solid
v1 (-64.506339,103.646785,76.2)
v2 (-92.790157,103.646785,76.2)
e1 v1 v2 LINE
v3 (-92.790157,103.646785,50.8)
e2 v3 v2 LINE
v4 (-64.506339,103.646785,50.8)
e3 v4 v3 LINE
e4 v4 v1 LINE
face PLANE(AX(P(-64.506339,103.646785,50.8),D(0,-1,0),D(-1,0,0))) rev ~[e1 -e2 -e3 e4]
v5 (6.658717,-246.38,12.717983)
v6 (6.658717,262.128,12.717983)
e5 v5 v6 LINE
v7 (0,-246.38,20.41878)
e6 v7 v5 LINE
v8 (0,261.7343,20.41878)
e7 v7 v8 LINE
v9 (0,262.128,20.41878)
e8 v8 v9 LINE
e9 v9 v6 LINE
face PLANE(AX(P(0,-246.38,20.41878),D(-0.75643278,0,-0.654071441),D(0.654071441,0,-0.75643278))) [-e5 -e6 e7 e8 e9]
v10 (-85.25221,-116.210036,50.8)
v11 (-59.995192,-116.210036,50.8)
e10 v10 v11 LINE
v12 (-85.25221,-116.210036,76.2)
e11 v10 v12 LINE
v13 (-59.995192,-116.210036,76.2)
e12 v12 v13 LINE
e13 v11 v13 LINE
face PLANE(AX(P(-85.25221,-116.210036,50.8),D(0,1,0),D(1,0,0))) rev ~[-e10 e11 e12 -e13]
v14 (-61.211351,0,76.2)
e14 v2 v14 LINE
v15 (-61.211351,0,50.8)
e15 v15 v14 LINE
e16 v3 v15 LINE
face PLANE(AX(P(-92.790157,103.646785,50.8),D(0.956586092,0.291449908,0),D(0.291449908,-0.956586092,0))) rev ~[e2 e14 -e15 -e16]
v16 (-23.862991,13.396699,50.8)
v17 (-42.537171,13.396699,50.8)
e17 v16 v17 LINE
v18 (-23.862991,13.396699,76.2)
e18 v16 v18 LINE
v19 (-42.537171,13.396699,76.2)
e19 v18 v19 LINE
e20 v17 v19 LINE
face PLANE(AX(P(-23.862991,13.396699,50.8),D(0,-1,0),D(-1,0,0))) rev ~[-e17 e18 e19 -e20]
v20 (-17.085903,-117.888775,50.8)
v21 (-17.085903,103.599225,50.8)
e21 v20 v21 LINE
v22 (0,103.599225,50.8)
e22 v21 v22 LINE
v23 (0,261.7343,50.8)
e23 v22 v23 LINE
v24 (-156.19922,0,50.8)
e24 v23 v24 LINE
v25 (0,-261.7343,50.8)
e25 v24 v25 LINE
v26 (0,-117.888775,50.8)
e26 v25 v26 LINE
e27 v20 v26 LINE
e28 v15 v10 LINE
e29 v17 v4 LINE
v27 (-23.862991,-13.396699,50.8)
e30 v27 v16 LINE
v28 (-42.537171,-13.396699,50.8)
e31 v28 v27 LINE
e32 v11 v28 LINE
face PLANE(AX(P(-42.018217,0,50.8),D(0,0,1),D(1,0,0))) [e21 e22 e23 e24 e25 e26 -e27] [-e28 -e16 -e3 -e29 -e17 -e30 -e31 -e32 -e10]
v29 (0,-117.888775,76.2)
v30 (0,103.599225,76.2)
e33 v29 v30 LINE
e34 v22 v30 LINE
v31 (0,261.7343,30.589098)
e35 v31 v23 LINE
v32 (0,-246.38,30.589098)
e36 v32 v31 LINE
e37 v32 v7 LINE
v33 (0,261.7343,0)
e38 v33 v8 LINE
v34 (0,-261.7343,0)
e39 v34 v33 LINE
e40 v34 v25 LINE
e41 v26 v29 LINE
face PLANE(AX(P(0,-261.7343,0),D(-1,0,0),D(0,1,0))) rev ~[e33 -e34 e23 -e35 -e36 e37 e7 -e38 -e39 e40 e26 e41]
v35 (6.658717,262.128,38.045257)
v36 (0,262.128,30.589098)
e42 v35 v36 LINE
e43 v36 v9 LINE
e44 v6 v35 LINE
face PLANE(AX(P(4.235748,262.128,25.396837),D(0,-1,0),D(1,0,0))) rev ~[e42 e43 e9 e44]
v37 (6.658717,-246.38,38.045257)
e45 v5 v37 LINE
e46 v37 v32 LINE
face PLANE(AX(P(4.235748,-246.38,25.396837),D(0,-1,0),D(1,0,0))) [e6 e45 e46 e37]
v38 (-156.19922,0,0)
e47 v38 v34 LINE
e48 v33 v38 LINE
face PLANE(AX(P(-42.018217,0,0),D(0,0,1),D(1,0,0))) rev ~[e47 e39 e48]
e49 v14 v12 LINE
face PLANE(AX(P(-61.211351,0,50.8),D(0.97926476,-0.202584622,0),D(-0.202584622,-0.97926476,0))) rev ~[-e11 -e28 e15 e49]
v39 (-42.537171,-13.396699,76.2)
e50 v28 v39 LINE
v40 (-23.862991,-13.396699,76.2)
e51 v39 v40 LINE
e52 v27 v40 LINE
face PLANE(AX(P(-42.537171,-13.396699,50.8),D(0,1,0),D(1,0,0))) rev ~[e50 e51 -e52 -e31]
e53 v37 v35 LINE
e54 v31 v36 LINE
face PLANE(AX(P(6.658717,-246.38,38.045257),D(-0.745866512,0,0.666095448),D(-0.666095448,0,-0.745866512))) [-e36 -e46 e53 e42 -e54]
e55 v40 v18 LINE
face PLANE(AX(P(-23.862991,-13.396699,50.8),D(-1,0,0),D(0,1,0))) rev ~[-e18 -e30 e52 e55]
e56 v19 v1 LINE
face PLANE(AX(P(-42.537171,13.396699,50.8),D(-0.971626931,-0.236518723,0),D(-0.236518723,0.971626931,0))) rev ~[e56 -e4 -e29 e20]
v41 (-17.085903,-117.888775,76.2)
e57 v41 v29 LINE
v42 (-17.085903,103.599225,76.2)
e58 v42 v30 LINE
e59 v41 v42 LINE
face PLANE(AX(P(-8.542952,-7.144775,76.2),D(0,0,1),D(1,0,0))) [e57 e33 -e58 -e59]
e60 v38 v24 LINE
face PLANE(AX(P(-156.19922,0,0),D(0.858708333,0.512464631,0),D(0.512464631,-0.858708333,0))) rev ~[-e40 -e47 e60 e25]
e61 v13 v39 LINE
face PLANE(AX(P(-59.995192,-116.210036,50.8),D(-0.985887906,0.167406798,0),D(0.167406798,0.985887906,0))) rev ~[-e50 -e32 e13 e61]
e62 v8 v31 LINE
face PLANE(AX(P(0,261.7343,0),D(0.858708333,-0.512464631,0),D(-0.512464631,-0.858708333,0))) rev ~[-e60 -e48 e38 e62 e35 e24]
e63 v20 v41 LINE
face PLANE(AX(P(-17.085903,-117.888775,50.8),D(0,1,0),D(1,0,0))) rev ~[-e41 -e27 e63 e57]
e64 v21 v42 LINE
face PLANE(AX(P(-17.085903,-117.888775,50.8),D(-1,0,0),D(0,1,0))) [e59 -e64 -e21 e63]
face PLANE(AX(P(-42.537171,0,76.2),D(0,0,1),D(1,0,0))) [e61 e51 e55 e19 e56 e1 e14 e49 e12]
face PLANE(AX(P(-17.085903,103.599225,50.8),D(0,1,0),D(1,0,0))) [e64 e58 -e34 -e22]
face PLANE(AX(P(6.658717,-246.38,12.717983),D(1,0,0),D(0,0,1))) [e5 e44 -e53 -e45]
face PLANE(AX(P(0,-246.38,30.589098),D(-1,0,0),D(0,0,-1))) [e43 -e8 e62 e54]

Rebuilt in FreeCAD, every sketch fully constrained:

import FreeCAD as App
import Part
import Sketcher
from FreeCAD import Vector
Q = App.Units.Quantity


def add_polygon(sketch, points):
    """Adds a closed chain of lines whose ends are joined by coincident constraints."""
    first, n = sketch.GeometryCount, len(points)
    for a, b in zip(points, points[1:] + points[:1]):
        sketch.addGeometry(Part.LineSegment(App.Vector(*a, 0), App.Vector(*b, 0)), False)
    for i in range(n):
        sketch.addConstraint(Sketcher.Constraint("Coincident", first + i, 2, first + (i + 1) % n, 1))

doc = App.newDocument("Part")
body = doc.addObject("PartDesign::Body", "Body")

# Sketch on XY plane
sketch1 = body.newObject("Sketcher::SketchObject", "Sketch")
sketch1.AttachmentSupport = (doc.getObject("XY_Plane"), [""])
sketch1.MapMode = "FlatFace"
add_polygon(sketch1, [(0, -262), (0, 262), (-156, 0)])  # lines 0-2
sketch1.addConstraint([
    Sketcher.Constraint("Vertical", 0),
    Sketcher.Constraint("Symmetric", 0, 2, 2, 2, -1, 1),
    Sketcher.Constraint("PointOnObject", 1, 2, -1),
    Sketcher.Constraint("Distance", 1, Q("12 in")),
    Sketcher.Constraint("DistanceY", 0, 1, 0, 2, Q("20.609 in")),
])
pad1 = body.newObject("PartDesign::Pad", "Pad")
pad1.Profile = sketch1
pad1.Length = Q("2 in")

# Sketch on XY plane
sketch2 = body.newObject("Sketcher::SketchObject", "Sketch001")
sketch2.AttachmentSupport = (doc.getObject("XY_Plane"), [""])
sketch2.MapMode = "FlatFace"
sketch2.AttachmentOffset = App.Placement(Vector(0, 0, 2 * 25.4), App.Rotation())
add_polygon(sketch2, [(-17, 104), (-17, -118), (0, -118), (0, 104)])  # lines 0-3
add_polygon(sketch2, [(-24, -13), (-24, 13), (-43, 13), (-65, 104), (-93, 104), (-61, 0), (-85, -116), (-60, -116), (-43, -13)])  # lines 4-12
sketch2.addConstraint([
    Sketcher.Constraint("Vertical", 0),
    Sketcher.Constraint("Horizontal", 1),
    Sketcher.Constraint("Vertical", 2),
    Sketcher.Constraint("Horizontal", 3),
    Sketcher.Constraint("Vertical", 4),
    Sketcher.Constraint("Horizontal", 5),
    Sketcher.Constraint("Horizontal", 7),
    Sketcher.Constraint("Horizontal", 10),
    Sketcher.Constraint("Horizontal", 12),
    Sketcher.Constraint("Symmetric", 5, 2, 11, 2, -1),
    Sketcher.Constraint("PointOnObject", 1, 2, -2),
    Sketcher.Constraint("PointOnObject", 8, 2, -1),
    Sketcher.Constraint("DistanceY", 0, 2, 0, 1, Q("8.72 in")),
    Sketcher.Constraint("Distance", 9, 118.670701),
    Sketcher.Constraint("DistanceX", 5, 2, 5, 1, 18.67418),
    Sketcher.Constraint("DistanceX", 10, 1, 10, 2, 25.257018),
    Sketcher.Constraint("DistanceY", -1, 1, 4, 2, 13.396699),
    Sketcher.Constraint("DistanceX", 1, 1, 1, 2, 17.085903),
    Sketcher.Constraint("DistanceX", 7, 2, 7, 1, 28.283817),
    Sketcher.Constraint("DistanceX", 4, 2, -1, 1, 23.862991),
    Sketcher.Constraint("DistanceX", 6, 2, -1, 1, 64.506339),
    Sketcher.Constraint("DistanceX", 8, 2, -1, 1, 61.211351),
    Sketcher.Constraint("DistanceX", 9, 2, -1, 1, 85.25221),
    Sketcher.Constraint("DistanceY", 3, 2, 6, 2, 0.04756),
    Sketcher.Constraint("DistanceY", 0, 2, 9, 2, 1.678739),
])
pad2 = body.newObject("PartDesign::Pad", "Pad001")
pad2.Profile = sketch2
pad2.Length = Q("1 in")

# Sketch on XZ plane
sketch3 = body.newObject("Sketcher::SketchObject", "Sketch002")
sketch3.AttachmentSupport = (doc.getObject("XZ_Plane"), [""])
sketch3.MapMode = "FlatFace"
sketch3.AttachmentOffset = App.Placement(Vector(0, 0, 9.7 * 25.4), App.Rotation())
add_polygon(sketch3, [(0, 31), (0, 20), (7, 13), (7, 38)])  # lines 0-3
sketch3.addConstraint([
    Sketcher.Constraint("Vertical", 0),
    Sketcher.Constraint("Vertical", 2),
    Sketcher.Constraint("PointOnObject", 0, 2, -2),
    Sketcher.Constraint("DistanceY", 0, 2, 0, 1, 10.170318),
    Sketcher.Constraint("DistanceY", -1, 1, 3, 2, 30.589098),
    Sketcher.Constraint("Distance", 1, 10.180412),
    Sketcher.Constraint("Distance", 3, 9.99664),
    Sketcher.Constraint("DistanceY", 2, 1, 2, 2, 25.327275),
])
pad3 = body.newObject("PartDesign::Pad", "Pad002")
pad3.Profile = sketch3
pad3.Length = Q("20.02 in")
pad3.Reversed = True

doc.recompute()
